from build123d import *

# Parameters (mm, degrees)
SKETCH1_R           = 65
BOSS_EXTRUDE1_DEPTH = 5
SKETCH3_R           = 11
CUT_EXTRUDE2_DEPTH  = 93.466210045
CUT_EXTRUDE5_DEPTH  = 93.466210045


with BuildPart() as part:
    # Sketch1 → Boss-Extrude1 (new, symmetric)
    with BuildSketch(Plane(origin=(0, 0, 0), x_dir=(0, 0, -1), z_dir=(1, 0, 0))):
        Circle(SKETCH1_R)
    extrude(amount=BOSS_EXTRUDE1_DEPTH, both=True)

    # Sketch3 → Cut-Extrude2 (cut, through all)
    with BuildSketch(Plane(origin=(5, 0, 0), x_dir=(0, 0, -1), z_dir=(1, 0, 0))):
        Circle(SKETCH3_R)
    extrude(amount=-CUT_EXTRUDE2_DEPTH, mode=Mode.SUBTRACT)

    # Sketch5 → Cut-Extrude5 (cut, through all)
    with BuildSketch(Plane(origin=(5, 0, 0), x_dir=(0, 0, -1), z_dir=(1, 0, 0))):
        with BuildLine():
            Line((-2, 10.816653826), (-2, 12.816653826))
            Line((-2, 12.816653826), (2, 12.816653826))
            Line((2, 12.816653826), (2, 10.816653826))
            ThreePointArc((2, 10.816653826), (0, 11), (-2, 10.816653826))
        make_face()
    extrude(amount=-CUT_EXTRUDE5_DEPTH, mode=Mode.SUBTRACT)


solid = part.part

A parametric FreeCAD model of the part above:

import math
import FreeCAD as App
import Part
import Sketcher
from FreeCAD import Vector

doc = App.newDocument("Part")
body = doc.addObject("PartDesign::Body", "Body")

# Sketch on YZ plane
sketch1 = doc.addObject("Sketcher::SketchObject", "Sketch")
body.addObject(sketch1)
sketch1.AttachmentSupport = (doc.YZ_Plane, [""])
sketch1.MapMode = "FlatFace"
sketch1.addGeometry(Part.Circle(Vector(0, 0, 0), Vector(0, 0, 1), 65), False)
sketch1.addConstraint(Sketcher.Constraint("Coincident", 0, 3, -1, 1))
sketch1.addConstraint(Sketcher.Constraint("Diameter", 0, 130.0))
pad1 = doc.addObject("PartDesign::Pad", "Pad")
body.addObject(pad1)
pad1.Profile = sketch1
pad1.Length = 10
pad1.Midplane = True

# Sketch on YZ plane
sketch2 = doc.addObject("Sketcher::SketchObject", "Sketch001")
body.addObject(sketch2)
sketch2.AttachmentSupport = (doc.YZ_Plane, [""])
sketch2.MapMode = "FlatFace"
sketch2.AttachmentOffset = App.Placement(Vector(0, 0, 5), App.Rotation())
sketch2.addGeometry(Part.Circle(Vector(0, 0, 0), Vector(0, 0, 1), 11), False)
sketch2.addConstraint(Sketcher.Constraint("Coincident", 0, 3, -1, 1))
sketch2.addConstraint(Sketcher.Constraint("Diameter", 0, 22.0))
pocket1 = doc.addObject("PartDesign::Pocket", "Pocket")
body.addObject(pocket1)
pocket1.Profile = sketch2
pocket1.Type = "ThroughAll"

# Sketch on YZ plane
sketch3 = doc.addObject("Sketcher::SketchObject", "Sketch002")
body.addObject(sketch3)
sketch3.AttachmentSupport = (doc.YZ_Plane, [""])
sketch3.MapMode = "FlatFace"
sketch3.AttachmentOffset = App.Placement(Vector(0, 0, 5), App.Rotation())
sketch3.addGeometry(Part.LineSegment(Vector(12.8, 2, 0), Vector(10.8, 2, 0)), False)
sketch3.addGeometry(Part.ArcOfCircle(Part.Circle(Vector(0, 0, 0), Vector(0, 0, 1), 11), math.radians(-10), math.radians(10)), False)
sketch3.addGeometry(Part.LineSegment(Vector(10.8, -2, 0), Vector(12.8, -2, 0)), False)
sketch3.addGeometry(Part.LineSegment(Vector(12.8, -2, 0), Vector(12.8, 2, 0)), False)
sketch3.addConstraint(Sketcher.Constraint("Coincident", 0, 2, 1, 2))
sketch3.addConstraint(Sketcher.Constraint("Coincident", 1, 1, 2, 1))
sketch3.addConstraint(Sketcher.Constraint("Coincident", 2, 2, 3, 1))
sketch3.addConstraint(Sketcher.Constraint("Coincident", 3, 2, 0, 1))
sketch3.addConstraint(Sketcher.Constraint("Horizontal", 0))
sketch3.addConstraint(Sketcher.Constraint("Horizontal", 2))
sketch3.addConstraint(Sketcher.Constraint("Vertical", 3))
sketch3.addConstraint(Sketcher.Constraint("Coincident", 1, 3, -1, 1))
sketch3.addConstraint(Sketcher.Constraint("Vertical", 0, 2, 1, 1))
sketch3.addConstraint(Sketcher.Constraint("Radius", 1, 11.0))
sketch3.addConstraint(Sketcher.Constraint("DistanceX", 0, 2, 0, 1, 2.0))
sketch3.addConstraint(Sketcher.Constraint("DistanceY", 3, 1, 3, 2, 4.0))
pocket2 = doc.addObject("PartDesign::Pocket", "Pocket001")
body.addObject(pocket2)
pocket2.Profile = sketch3
pocket2.Type = "ThroughAll"

doc.recompute()
